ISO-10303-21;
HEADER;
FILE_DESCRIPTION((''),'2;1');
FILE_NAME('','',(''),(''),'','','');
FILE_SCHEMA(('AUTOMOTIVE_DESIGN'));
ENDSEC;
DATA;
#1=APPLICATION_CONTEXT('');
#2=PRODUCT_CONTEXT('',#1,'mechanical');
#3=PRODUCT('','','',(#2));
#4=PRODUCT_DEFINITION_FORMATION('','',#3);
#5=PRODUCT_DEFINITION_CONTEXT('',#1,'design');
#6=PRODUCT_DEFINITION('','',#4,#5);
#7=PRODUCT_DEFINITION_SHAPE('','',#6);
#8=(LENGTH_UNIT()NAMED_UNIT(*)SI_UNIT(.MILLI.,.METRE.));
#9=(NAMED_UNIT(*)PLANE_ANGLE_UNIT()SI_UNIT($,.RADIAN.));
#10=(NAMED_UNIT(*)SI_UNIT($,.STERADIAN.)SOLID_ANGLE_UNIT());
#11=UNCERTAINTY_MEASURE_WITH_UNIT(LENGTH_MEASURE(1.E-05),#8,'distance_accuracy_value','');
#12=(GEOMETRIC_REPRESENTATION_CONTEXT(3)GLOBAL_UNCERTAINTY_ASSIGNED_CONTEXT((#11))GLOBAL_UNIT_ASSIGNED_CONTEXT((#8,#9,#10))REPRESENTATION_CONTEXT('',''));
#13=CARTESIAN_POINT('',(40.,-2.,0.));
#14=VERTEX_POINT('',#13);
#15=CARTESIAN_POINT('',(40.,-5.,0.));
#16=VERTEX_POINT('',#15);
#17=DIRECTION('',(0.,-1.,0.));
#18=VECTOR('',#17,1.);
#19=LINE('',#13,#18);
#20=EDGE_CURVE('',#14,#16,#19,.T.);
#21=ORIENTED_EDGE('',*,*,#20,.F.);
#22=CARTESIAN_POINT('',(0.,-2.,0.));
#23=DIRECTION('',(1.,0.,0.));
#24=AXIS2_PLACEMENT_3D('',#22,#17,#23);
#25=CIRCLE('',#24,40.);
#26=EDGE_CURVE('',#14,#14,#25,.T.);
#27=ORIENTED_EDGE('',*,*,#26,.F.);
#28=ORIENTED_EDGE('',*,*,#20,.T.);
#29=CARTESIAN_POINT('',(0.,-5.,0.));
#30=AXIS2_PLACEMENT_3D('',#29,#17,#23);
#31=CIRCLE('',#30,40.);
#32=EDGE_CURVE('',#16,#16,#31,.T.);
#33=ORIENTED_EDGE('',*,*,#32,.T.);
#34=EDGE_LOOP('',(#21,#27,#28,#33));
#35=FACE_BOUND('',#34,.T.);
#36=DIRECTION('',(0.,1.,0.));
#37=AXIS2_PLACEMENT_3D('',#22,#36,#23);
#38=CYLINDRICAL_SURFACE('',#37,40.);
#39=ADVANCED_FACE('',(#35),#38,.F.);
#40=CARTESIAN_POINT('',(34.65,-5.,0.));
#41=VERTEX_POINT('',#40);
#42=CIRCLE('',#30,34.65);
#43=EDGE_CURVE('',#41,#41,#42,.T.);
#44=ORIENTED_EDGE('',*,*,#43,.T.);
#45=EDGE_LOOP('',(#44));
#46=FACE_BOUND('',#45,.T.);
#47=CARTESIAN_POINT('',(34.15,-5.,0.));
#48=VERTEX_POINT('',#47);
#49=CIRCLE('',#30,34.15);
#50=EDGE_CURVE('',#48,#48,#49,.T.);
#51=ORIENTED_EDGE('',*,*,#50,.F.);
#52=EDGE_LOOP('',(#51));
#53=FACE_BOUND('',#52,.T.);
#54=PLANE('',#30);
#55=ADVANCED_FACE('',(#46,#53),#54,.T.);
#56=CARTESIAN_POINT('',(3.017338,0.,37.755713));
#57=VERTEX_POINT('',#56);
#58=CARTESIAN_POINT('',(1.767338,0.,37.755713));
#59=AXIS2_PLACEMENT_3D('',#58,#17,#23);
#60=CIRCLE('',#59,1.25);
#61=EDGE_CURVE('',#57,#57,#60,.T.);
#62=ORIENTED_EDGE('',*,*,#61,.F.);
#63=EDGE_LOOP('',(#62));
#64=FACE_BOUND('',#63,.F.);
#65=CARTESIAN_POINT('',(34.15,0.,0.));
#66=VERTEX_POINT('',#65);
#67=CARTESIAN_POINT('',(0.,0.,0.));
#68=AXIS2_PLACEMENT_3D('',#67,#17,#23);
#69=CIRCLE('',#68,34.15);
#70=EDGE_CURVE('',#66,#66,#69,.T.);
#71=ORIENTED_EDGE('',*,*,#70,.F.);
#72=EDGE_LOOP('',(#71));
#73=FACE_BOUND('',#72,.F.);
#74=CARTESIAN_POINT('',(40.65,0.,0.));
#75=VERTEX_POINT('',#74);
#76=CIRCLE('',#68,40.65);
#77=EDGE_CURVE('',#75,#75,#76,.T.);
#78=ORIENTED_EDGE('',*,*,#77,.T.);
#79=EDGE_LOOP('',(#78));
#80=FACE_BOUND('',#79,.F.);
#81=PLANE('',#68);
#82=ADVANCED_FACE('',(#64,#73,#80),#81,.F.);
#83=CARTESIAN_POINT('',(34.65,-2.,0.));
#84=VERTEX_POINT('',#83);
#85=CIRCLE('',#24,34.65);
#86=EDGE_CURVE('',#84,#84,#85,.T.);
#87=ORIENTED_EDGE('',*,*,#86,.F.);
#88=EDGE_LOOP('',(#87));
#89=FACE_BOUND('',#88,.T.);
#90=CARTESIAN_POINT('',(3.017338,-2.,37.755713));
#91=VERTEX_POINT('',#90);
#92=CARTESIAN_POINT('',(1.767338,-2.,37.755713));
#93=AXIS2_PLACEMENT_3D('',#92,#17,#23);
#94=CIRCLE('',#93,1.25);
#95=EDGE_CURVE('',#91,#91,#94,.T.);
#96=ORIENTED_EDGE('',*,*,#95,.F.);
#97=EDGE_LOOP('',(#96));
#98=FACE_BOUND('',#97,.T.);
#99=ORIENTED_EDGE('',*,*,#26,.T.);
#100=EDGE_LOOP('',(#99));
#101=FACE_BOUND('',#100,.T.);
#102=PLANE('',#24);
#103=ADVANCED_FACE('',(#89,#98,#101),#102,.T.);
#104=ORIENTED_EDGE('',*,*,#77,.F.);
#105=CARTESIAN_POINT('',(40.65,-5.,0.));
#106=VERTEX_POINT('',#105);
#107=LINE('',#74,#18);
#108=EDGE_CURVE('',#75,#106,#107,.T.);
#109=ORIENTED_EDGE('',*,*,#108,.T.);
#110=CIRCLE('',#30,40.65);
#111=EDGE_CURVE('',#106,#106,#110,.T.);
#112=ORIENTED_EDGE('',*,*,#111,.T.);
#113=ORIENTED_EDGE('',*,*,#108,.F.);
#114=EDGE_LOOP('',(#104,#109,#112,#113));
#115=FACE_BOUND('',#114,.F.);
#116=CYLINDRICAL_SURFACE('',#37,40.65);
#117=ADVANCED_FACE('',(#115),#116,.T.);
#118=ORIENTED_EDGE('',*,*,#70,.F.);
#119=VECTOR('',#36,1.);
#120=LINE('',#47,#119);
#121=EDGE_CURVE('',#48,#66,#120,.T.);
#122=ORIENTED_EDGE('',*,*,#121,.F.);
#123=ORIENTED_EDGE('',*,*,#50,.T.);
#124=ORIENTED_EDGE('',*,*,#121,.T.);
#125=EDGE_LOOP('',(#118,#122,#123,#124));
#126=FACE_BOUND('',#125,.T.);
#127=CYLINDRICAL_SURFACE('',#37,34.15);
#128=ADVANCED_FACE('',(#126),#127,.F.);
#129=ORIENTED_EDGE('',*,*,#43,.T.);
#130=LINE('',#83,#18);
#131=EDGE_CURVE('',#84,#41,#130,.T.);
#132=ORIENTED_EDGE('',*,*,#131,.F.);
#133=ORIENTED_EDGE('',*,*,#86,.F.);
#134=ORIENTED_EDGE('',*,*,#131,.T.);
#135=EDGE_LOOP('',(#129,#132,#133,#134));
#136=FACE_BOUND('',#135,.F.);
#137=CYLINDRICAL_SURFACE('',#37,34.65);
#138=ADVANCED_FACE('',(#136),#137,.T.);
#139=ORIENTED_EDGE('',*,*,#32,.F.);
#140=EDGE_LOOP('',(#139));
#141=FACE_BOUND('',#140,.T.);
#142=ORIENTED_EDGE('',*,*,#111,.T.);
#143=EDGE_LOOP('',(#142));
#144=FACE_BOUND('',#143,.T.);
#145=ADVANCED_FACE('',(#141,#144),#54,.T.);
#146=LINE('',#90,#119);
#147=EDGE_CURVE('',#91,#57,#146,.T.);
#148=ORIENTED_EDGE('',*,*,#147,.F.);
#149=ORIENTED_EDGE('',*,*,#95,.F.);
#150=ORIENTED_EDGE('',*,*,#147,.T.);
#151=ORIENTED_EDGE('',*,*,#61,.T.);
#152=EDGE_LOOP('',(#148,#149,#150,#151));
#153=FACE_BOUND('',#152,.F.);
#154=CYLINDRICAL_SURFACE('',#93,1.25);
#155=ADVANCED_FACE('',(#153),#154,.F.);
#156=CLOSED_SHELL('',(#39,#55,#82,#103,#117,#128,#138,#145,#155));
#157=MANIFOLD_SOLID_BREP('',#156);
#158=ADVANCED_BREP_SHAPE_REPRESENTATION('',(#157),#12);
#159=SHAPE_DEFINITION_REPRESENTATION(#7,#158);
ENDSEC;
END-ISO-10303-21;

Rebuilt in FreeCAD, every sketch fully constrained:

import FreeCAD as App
import Part
import Sketcher
from FreeCAD import Vector

doc = App.newDocument("Part")
params = doc.addObject("Spreadsheet::Sheet", "Params")
for row, (alias, value) in enumerate([
    ("sketch1_diameter", "81.3 mm"),
    ("sketch1_diameter2", "68.3 mm"),
    ("pad1_length", "2 mm"),
    ("sketch2_diameter", "80 mm"),
    ("sketch2_diameter2", "81.3 mm"),
    ("pad2_length", "3 mm"),
    ("sketch3_diameter", "69.3 mm"),
    ("sketch3_diameter2", "68.3 mm"),
    ("pad3_length", "3 mm"),
    ("sketch4_diameter", "2.5 mm"),
    ("pocket1_length", "25 mm"),
], start=1):
    params.set(f"A{row}", alias)
    params.set(f"B{row}", "=" + value)
    params.setAlias(f"B{row}", alias)

body = doc.addObject("PartDesign::Body", "Body")

sketch1 = doc.addObject("Sketcher::SketchObject", "Sketch")
body.addObject(sketch1)
sketch1.AttachmentSupport = (doc.XZ_Plane, [""])
sketch1.MapMode = "FlatFace"
sketch1.addGeometry(Part.Circle(Vector(0, 0, 0), Vector(0, 0, 1), 40.65), False)
sketch1.addGeometry(Part.Circle(Vector(0, 0, 0), Vector(0, 0, 1), 34.15), False)
sketch1.addConstraint(Sketcher.Constraint("Coincident", 0, 3, -1, 1))
sketch1.addConstraint(Sketcher.Constraint("Coincident", 1, 3, -1, 1))
sketch1.addConstraint(Sketcher.Constraint("Diameter", 0, 81.3))
sketch1.addConstraint(Sketcher.Constraint("Diameter", 1, 68.3))
sketch1.setExpression("Constraints[2]", "Params.sketch1_diameter")
sketch1.setExpression("Constraints[3]", "Params.sketch1_diameter2")
pad1 = doc.addObject("PartDesign::Pad", "Pad")
body.addObject(pad1)
pad1.Profile = sketch1
pad1.setExpression("Length", "Params.pad1_length")

sketch2 = doc.addObject("Sketcher::SketchObject", "Sketch001")
body.addObject(sketch2)
sketch2.AttachmentSupport = (doc.XZ_Plane, [""])
sketch2.MapMode = "FlatFace"
sketch2.AttachmentOffset = App.Placement(Vector(0, 0, 2), App.Rotation())
sketch2.addGeometry(Part.Circle(Vector(0, 0, 0), Vector(0, 0, 1), 40.65), False)
sketch2.addGeometry(Part.Circle(Vector(0, 0, 0), Vector(0, 0, 1), 40), False)
sketch2.addConstraint(Sketcher.Constraint("Coincident", 0, 3, -1, 1))
sketch2.addConstraint(Sketcher.Constraint("Coincident", 1, 3, -1, 1))
sketch2.addConstraint(Sketcher.Constraint("Diameter", 1, 80.0))
sketch2.addConstraint(Sketcher.Constraint("Diameter", 0, 81.3))
sketch2.setExpression("Constraints[2]", "Params.sketch2_diameter")
sketch2.setExpression("Constraints[3]", "Params.sketch2_diameter2")
pad2 = doc.addObject("PartDesign::Pad", "Pad001")
body.addObject(pad2)
pad2.Profile = sketch2
pad2.setExpression("Length", "Params.pad2_length")

sketch3 = doc.addObject("Sketcher::SketchObject", "Sketch002")
body.addObject(sketch3)
sketch3.AttachmentSupport = (doc.XZ_Plane, [""])
sketch3.MapMode = "FlatFace"
sketch3.AttachmentOffset = App.Placement(Vector(0, 0, 2), App.Rotation())
sketch3.addGeometry(Part.Circle(Vector(0, 0, 0), Vector(0, 0, 1), 34.65), False)
sketch3.addGeometry(Part.Circle(Vector(0, 0, 0), Vector(0, 0, 1), 34.15), False)
sketch3.addConstraint(Sketcher.Constraint("Coincident", 0, 3, -1, 1))
sketch3.addConstraint(Sketcher.Constraint("Coincident", 1, 3, -1, 1))
sketch3.addConstraint(Sketcher.Constraint("Diameter", 0, 69.3))
sketch3.addConstraint(Sketcher.Constraint("Diameter", 1, 68.3))
sketch3.setExpression("Constraints[2]", "Params.sketch3_diameter")
sketch3.setExpression("Constraints[3]", "Params.sketch3_diameter2")
pad3 = doc.addObject("PartDesign::Pad", "Pad002")
body.addObject(pad3)
pad3.Profile = sketch3
pad3.setExpression("Length", "Params.pad3_length")

sketch4 = doc.addObject("Sketcher::SketchObject", "Sketch003")
body.addObject(sketch4)
sketch4.AttachmentSupport = (doc.XZ_Plane, [""])
sketch4.MapMode = "FlatFace"
sketch4.AttachmentOffset = App.Placement(Vector(0, 0, 2), App.Rotation())
sketch4.addGeometry(Part.Circle(Vector(1.767338, 37.755713, 0), Vector(0, 0, 1), 1.25), False)
sketch4.addConstraint(Sketcher.Constraint("Diameter", 0, 2.5))
sketch4.addConstraint(Sketcher.Constraint("DistanceX", -1, 1, 0, 3, 1.767338))
sketch4.addConstraint(Sketcher.Constraint("DistanceY", -1, 1, 0, 3, 37.755713))
sketch4.setExpression("Constraints[0]", "Params.sketch4_diameter")
pocket1 = doc.addObject("PartDesign::Pocket", "Pocket")
body.addObject(pocket1)
pocket1.Profile = sketch4
pocket1.setExpression("Length", "Params.pocket1_length")

doc.recompute()
